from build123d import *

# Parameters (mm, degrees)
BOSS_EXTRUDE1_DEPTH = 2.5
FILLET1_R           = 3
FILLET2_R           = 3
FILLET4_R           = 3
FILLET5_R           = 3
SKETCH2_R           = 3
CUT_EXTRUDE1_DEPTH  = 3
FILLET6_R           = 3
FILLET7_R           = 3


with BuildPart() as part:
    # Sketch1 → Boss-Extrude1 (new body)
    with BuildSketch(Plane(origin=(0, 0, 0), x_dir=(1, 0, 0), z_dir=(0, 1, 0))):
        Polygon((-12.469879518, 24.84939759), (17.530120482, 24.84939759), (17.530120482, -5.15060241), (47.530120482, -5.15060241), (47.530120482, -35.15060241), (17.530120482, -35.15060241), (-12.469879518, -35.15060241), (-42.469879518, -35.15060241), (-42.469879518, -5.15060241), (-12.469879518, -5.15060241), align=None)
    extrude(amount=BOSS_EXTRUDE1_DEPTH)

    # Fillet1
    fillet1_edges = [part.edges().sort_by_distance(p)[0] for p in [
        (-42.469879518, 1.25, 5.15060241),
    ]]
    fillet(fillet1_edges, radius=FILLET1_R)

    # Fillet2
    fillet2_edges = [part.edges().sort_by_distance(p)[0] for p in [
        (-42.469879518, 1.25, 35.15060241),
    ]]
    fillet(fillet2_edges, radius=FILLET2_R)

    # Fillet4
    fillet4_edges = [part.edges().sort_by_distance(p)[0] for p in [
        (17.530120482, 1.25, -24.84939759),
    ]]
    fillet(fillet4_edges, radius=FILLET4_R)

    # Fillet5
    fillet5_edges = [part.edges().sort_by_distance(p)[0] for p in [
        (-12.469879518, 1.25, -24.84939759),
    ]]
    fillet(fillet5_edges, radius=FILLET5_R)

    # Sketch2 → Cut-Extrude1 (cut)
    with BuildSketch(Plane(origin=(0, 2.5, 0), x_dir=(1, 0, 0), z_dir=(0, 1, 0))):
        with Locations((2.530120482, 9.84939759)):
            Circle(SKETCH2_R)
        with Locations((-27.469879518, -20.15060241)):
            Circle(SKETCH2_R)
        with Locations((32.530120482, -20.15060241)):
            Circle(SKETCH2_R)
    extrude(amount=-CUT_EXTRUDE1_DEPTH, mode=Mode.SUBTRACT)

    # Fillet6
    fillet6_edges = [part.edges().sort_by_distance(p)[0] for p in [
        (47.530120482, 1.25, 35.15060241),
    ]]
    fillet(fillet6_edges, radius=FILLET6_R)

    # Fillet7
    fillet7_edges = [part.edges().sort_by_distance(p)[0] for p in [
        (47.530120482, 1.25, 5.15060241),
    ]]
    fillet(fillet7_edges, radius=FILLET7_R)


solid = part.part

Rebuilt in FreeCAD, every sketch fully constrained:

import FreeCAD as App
import Part
import Sketcher

V = App.Vector
Q = App.Units.Quantity


def edges_at(feature, points):
    """Names of the edges that pass closest to the given points."""
    edges = feature.Shape.Edges
    near = lambda p: min(range(len(edges)), key=lambda i: edges[i].distToShape(Part.Vertex(*p))[0])
    return sorted({f"Edge{near(p) + 1}" for p in points})


def add_polygon(sketch, points):
    """Adds a closed chain of lines whose ends are joined by coincident constraints."""
    first, n = sketch.GeometryCount, len(points)
    for a, b in zip(points, points[1:] + points[:1]):
        sketch.addGeometry(Part.LineSegment(App.Vector(*a, 0), App.Vector(*b, 0)), False)
    for i in range(n):
        sketch.addConstraint(Sketcher.Constraint("Coincident", first + i, 2, first + (i + 1) % n, 1))

doc = App.newDocument("Part")
body = doc.addObject("PartDesign::Body", "Body")

# Sketch on XZ plane
sketch1 = body.newObject("Sketcher::SketchObject", "Sketch")
sketch1.AttachmentSupport = (doc.getObject("XZ_Plane"), [""])
sketch1.MapMode = "FlatFace"
add_polygon(sketch1, [(17.53012, -24.849398), (-12.46988, -24.849398), (-12.46988, 5.150602), (-42.46988, 5.150602), (-42.46988, 35.150602), (47.53012, 35.150602), (47.53012, 5.150602), (17.53012, 5.150602)])  # lines 0-7
sketch1.addConstraint([
    Sketcher.Constraint("Horizontal", 0),
    Sketcher.Constraint("Vertical", 1),
    Sketcher.Constraint("Horizontal", 2),
    Sketcher.Constraint("Vertical", 3),
    Sketcher.Constraint("Horizontal", 4),
    Sketcher.Constraint("Vertical", 5),
    Sketcher.Constraint("Horizontal", 6),
    Sketcher.Constraint("Vertical", 7),
    Sketcher.Constraint("Horizontal", 2, 2, 5, 2),
    Sketcher.Constraint("Equal", 0, 2),
    Sketcher.Constraint("Equal", 2, 6),
    Sketcher.Constraint("Equal", 6, 1),
    Sketcher.Constraint("Equal", 1, 3),
    Sketcher.Constraint("DistanceX", 0, 2, 0, 1, Q("30 mm")),
    Sketcher.Constraint("DistanceX", 0, 2, -1, 1, Q("12.46988 mm")),
    Sketcher.Constraint("DistanceY", 0, 2, -1, 1, Q("24.849398 mm")),
])
pad1 = body.newObject("PartDesign::Pad", "Pad")
pad1.Profile = sketch1
pad1.Length = 2.5
pad1.Reversed = True
doc.recompute()

fillet = body.newObject("PartDesign::Fillet", "Fillet")
fillet.Base = (pad1, edges_at(pad1, [(-42.47, 1.25, 5.151)]))
fillet.Radius = 3
doc.recompute()

fillet2 = body.newObject("PartDesign::Fillet", "Fillet001")
fillet2.Base = (fillet, edges_at(fillet, [(-42.47, 1.25, 35.151)]))
fillet2.Radius = 3
doc.recompute()

fillet3 = body.newObject("PartDesign::Fillet", "Fillet002")
fillet3.Base = (fillet2, edges_at(fillet2, [(17.53, 1.25, -24.849)]))
fillet3.Radius = 3
doc.recompute()

fillet4 = body.newObject("PartDesign::Fillet", "Fillet003")
fillet4.Base = (fillet3, edges_at(fillet3, [(-12.47, 1.25, -24.849)]))
fillet4.Radius = 3

# Sketch on XZ plane
sketch2 = body.newObject("Sketcher::SketchObject", "Sketch001")
sketch2.AttachmentSupport = (doc.getObject("XZ_Plane"), [""])
sketch2.MapMode = "FlatFace"
sketch2.AttachmentOffset = App.Placement(V(0, 0, -2.5), App.Rotation())
sketch2.addGeometry([
    Part.Circle(V(2.53012, -9.849398, 0), V(0, 0, 1), 3),
    Part.Circle(V(-27.46988, 20.150602, 0), V(0, 0, 1), 3),
    Part.Circle(V(32.53012, 20.150602, 0), V(0, 0, 1), 3),
], False)
sketch2.addConstraint([
    Sketcher.Constraint("Equal", 0, 1),
    Sketcher.Constraint("Equal", 1, 2),
    Sketcher.Constraint("Horizontal", 1, 3, 2, 3),
    Sketcher.Constraint("Diameter", 0, Q("6 mm")),
    Sketcher.Constraint("DistanceX", 1, 3, 0, 3, Q("30 mm")),
    Sketcher.Constraint("DistanceY", 0, 3, 1, 3, Q("30 mm")),
    Sketcher.Constraint("DistanceX", 0, 3, 2, 3, Q("30 mm")),
    Sketcher.Constraint("DistanceX", -1, 1, 0, 3, Q("2.53012 mm")),
    Sketcher.Constraint("DistanceY", 0, 3, -1, 1, Q("9.849398 mm")),
])
pocket1 = body.newObject("PartDesign::Pocket", "Pocket")
pocket1.Profile = sketch2
pocket1.Length = 3
pocket1.Reversed = True
doc.recompute()

fillet5 = body.newObject("PartDesign::Fillet", "Fillet004")
fillet5.Base = (pocket1, edges_at(pocket1, [(47.53, 1.25, 35.151)]))
fillet5.Radius = 3
doc.recompute()

fillet6 = body.newObject("PartDesign::Fillet", "Fillet005")
fillet6.Base = (fillet5, edges_at(fillet5, [(47.53, 1.25, 5.151)]))
fillet6.Radius = 3

doc.recompute()
